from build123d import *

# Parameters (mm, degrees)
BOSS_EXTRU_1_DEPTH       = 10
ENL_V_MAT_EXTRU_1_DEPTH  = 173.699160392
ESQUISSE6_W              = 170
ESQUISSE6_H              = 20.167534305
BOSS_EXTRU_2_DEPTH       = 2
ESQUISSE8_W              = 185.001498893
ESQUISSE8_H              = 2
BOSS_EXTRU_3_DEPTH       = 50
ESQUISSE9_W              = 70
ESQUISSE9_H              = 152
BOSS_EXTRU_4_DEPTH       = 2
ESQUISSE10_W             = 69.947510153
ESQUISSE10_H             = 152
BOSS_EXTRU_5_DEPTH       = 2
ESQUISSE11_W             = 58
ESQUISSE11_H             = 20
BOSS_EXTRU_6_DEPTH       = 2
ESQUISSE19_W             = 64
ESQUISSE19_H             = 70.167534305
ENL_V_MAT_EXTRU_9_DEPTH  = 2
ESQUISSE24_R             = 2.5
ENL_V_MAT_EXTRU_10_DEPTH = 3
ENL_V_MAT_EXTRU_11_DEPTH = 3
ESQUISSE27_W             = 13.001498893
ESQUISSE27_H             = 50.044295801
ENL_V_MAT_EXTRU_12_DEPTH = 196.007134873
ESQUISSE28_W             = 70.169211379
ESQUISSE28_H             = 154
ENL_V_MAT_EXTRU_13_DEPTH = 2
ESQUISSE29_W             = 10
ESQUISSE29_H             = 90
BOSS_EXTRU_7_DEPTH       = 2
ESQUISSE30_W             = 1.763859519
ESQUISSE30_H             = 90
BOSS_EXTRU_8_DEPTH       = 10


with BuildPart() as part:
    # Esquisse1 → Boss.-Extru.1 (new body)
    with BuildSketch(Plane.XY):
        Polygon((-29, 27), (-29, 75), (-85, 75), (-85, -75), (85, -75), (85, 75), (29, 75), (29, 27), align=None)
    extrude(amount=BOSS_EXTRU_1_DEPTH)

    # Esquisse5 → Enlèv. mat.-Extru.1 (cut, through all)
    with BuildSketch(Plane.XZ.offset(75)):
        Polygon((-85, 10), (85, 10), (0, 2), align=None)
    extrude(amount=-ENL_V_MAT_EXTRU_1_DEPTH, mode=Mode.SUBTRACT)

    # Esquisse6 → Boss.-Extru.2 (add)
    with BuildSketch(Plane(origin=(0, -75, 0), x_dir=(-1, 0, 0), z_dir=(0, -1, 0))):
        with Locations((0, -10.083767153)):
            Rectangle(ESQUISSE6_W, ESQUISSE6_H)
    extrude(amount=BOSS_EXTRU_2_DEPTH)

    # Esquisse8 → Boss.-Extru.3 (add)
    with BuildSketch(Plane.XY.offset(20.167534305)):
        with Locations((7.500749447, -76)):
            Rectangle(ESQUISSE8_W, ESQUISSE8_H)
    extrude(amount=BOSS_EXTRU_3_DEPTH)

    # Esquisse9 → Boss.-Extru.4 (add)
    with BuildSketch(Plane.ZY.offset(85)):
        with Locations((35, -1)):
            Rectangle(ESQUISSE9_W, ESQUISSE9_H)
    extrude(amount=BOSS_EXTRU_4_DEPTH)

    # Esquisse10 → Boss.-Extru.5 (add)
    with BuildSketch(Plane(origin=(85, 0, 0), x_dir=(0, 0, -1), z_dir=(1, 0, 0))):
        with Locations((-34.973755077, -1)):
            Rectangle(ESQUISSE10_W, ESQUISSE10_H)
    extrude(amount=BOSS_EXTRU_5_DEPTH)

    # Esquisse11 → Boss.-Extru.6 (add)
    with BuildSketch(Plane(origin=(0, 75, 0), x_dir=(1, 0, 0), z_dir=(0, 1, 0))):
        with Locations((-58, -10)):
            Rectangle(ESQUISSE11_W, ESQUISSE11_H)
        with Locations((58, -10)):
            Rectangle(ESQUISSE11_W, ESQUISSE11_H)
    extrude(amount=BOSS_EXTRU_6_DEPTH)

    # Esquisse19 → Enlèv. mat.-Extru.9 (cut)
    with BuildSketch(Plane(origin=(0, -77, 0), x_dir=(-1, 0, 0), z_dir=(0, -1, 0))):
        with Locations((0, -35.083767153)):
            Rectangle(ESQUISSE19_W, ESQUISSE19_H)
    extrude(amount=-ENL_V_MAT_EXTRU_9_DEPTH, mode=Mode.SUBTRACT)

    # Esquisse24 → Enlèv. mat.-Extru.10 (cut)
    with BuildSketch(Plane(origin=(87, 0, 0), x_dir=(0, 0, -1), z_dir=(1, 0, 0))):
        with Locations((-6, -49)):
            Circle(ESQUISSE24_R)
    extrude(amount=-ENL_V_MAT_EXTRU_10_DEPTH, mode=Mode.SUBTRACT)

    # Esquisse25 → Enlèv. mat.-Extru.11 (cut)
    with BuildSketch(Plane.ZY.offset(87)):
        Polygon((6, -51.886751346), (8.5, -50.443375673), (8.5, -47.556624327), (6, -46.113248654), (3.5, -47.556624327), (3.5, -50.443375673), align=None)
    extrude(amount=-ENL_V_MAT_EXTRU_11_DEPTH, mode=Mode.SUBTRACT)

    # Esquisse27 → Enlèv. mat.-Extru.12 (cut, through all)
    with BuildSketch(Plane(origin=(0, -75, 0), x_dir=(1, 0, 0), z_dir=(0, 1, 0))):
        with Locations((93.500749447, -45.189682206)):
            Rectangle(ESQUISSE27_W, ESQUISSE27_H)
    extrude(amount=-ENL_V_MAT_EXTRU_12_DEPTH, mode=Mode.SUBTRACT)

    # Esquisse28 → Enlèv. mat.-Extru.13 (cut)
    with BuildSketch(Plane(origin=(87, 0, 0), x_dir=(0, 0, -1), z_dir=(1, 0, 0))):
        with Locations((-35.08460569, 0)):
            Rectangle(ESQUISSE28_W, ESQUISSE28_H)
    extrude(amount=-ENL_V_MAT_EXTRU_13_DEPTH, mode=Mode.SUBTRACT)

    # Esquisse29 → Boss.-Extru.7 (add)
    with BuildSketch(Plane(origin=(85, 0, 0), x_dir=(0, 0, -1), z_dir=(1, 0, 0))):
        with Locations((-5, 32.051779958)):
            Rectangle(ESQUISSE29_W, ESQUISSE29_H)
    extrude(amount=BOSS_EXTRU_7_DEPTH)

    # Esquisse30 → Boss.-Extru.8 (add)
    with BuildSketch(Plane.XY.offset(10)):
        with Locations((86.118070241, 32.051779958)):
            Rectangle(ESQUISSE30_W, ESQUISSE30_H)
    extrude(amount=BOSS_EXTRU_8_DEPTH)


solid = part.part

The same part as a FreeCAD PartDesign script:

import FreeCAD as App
import Part
import Sketcher
from FreeCAD import Vector
Q = App.Units.Quantity

doc = App.newDocument("Part")
params = doc.addObject("Spreadsheet::Sheet", "Params")
for row, (alias, value) in enumerate([
    ("sketch1_width", "56 mm"),
    ("sketch1_width2", "170 mm"),
    ("sketch1_height", "48 mm"),
    ("sketch1_height2", "150 mm"),
    ("pad1_length", "10 mm"),
    ("sketch2_width", "170 mm"),
    ("sketch3_width", "170 mm"),
    ("pad2_length", "2 mm"),
    ("sketch4_height", "2 mm"),
    ("pad3_length", "50 mm"),
    ("sketch5_width", "152 mm"),
    ("sketch5_height", "70 mm"),
    ("pad4_length", "2 mm"),
    ("sketch6_width", "152 mm"),
    ("pad5_length", "2 mm"),
    ("sketch7_width", "58 mm"),
    ("sketch7_height", "20 mm"),
    ("pad6_length", "2 mm"),
    ("sketch8_width", "64 mm"),
    ("pocket2_length", "2 mm"),
    ("sketch9_diameter", "5 mm"),
    ("pocket3_length", "3 mm"),
    ("pocket4_length", "3 mm"),
    ("sketch12_width", "154 mm"),
    ("pocket6_length", "2 mm"),
    ("sketch13_width", "90 mm"),
    ("sketch13_height", "10 mm"),
    ("pad7_length", "2 mm"),
    ("sketch14_height", "90 mm"),
    ("pad8_length", "10 mm"),
], start=1):
    params.set(f"A{row}", alias)
    params.set(f"B{row}", "=" + value)
    params.setAlias(f"B{row}", alias)

body = doc.addObject("PartDesign::Body", "Body")

sketch1 = body.newObject("Sketcher::SketchObject", "Sketch")
sketch1.AttachmentSupport = (doc.getObject("XY_Plane"), [""])
sketch1.MapMode = "FlatFace"
sketch1.addGeometry([
    Part.LineSegment(Vector(-29, 27, 0), Vector(-29, 75, 0)),
    Part.LineSegment(Vector(-29, 75, 0), Vector(-85, 75, 0)),
    Part.LineSegment(Vector(-85, 75, 0), Vector(-85, -75, 0)),
    Part.LineSegment(Vector(-85, -75, 0), Vector(85, -75, 0)),
    Part.LineSegment(Vector(85, -75, 0), Vector(85, 75, 0)),
    Part.LineSegment(Vector(85, 75, 0), Vector(29, 75, 0)),
    Part.LineSegment(Vector(29, 75, 0), Vector(29, 27, 0)),
    Part.LineSegment(Vector(29, 27, 0), Vector(-29, 27, 0)),
], False)
sketch1.addConstraint([
    Sketcher.Constraint("Coincident", 0, 2, 1, 1),
    Sketcher.Constraint("Coincident", 1, 2, 2, 1),
    Sketcher.Constraint("Coincident", 2, 2, 3, 1),
    Sketcher.Constraint("Coincident", 3, 2, 4, 1),
    Sketcher.Constraint("Coincident", 4, 2, 5, 1),
    Sketcher.Constraint("Coincident", 5, 2, 6, 1),
    Sketcher.Constraint("Coincident", 6, 2, 7, 1),
    Sketcher.Constraint("Coincident", 7, 2, 0, 1),
    Sketcher.Constraint("Vertical", 0),
    Sketcher.Constraint("Horizontal", 1),
    Sketcher.Constraint("Vertical", 2),
    Sketcher.Constraint("Horizontal", 3),
    Sketcher.Constraint("Vertical", 4),
    Sketcher.Constraint("Horizontal", 5),
    Sketcher.Constraint("Vertical", 6),
    Sketcher.Constraint("Horizontal", 7),
    Sketcher.Constraint("Symmetric", 1, 2, 3, 2, -1, 1),
    Sketcher.Constraint("Symmetric", 0, 2, 5, 2, -2),
    Sketcher.Constraint("DistanceX", 1, 2, 1, 1, Q("56 mm")),
    Sketcher.Constraint("DistanceX", 3, 1, 3, 2, Q("170 mm")),
    Sketcher.Constraint("DistanceY", 0, 1, 0, 2, Q("48 mm")),
    Sketcher.Constraint("DistanceY", 2, 2, 2, 1, Q("150 mm")),
])
sketch1.setExpression("Constraints[18]", "Params.sketch1_width")
sketch1.setExpression("Constraints[19]", "Params.sketch1_width2")
sketch1.setExpression("Constraints[20]", "Params.sketch1_height")
sketch1.setExpression("Constraints[21]", "Params.sketch1_height2")
pad1 = body.newObject("PartDesign::Pad", "Pad")
pad1.Profile = sketch1
pad1.setExpression("Length", "Params.pad1_length")

sketch2 = body.newObject("Sketcher::SketchObject", "Sketch001")
sketch2.AttachmentSupport = (doc.getObject("XZ_Plane"), [""])
sketch2.MapMode = "FlatFace"
sketch2.AttachmentOffset = App.Placement(Vector(0, 0, 75), App.Rotation())
sketch2.addGeometry([
    Part.LineSegment(Vector(85, 10, 0), Vector(-85, 10, 0)),
    Part.LineSegment(Vector(-85, 10, 0), Vector(0, 2, 0)),
    Part.LineSegment(Vector(0, 2, 0), Vector(85, 10, 0)),
], False)
sketch2.addConstraint([
    Sketcher.Constraint("Coincident", 0, 2, 1, 1),
    Sketcher.Constraint("Coincident", 1, 2, 2, 1),
    Sketcher.Constraint("Coincident", 2, 2, 0, 1),
    Sketcher.Constraint("Horizontal", 0),
    Sketcher.Constraint("PointOnObject", 1, 2, -2),
    Sketcher.Constraint("Equal", 1, 2),
    Sketcher.Constraint("DistanceX", 0, 2, 0, 1, Q("170 mm")),
    Sketcher.Constraint("DistanceY", -1, 1, 0, 2, Q("10 mm")),
    Sketcher.Constraint("DistanceY", -1, 1, 1, 2, Q("2 mm")),
])
sketch2.setExpression("Constraints[6]", "Params.sketch2_width")
pocket1 = body.newObject("PartDesign::Pocket", "Pocket")
pocket1.Profile = sketch2
pocket1.Type = "ThroughAll"

sketch3 = body.newObject("Sketcher::SketchObject", "Sketch002")
sketch3.AttachmentSupport = (doc.getObject("XZ_Plane"), [""])
sketch3.MapMode = "FlatFace"
sketch3.AttachmentOffset = App.Placement(Vector(0, 0, 75), App.Rotation())
sketch3.addGeometry([
    Part.LineSegment(Vector(85, 0, 0), Vector(85, 20, 0)),
    Part.LineSegment(Vector(85, 20, 0), Vector(-85, 20, 0)),
    Part.LineSegment(Vector(-85, 20, 0), Vector(-85, 0, 0)),
    Part.LineSegment(Vector(-85, 0, 0), Vector(85, 0, 0)),
], False)
sketch3.addConstraint([
    Sketcher.Constraint("Coincident", 0, 2, 1, 1),
    Sketcher.Constraint("Coincident", 1, 2, 2, 1),
    Sketcher.Constraint("Coincident", 2, 2, 3, 1),
    Sketcher.Constraint("Coincident", 3, 2, 0, 1),
    Sketcher.Constraint("Vertical", 0),
    Sketcher.Constraint("Horizontal", 1),
    Sketcher.Constraint("Vertical", 2),
    Sketcher.Constraint("Horizontal", 3),
    Sketcher.Constraint("Symmetric", 2, 2, 3, 2, -1, 1),
    Sketcher.Constraint("DistanceX", 1, 2, 1, 1, Q("170 mm")),
    Sketcher.Constraint("DistanceY", 0, 1, 0, 2, Q("20.167534 mm")),
])
sketch3.setExpression("Constraints[9]", "Params.sketch3_width")
pad2 = body.newObject("PartDesign::Pad", "Pad001")
pad2.Profile = sketch3
pad2.setExpression("Length", "Params.pad2_length")

sketch4 = body.newObject("Sketcher::SketchObject", "Sketch003")
sketch4.AttachmentSupport = (doc.getObject("XY_Plane"), [""])
sketch4.MapMode = "FlatFace"
sketch4.AttachmentOffset = App.Placement(Vector(0, 0, 20.167534), App.Rotation())
sketch4.addGeometry([
    Part.LineSegment(Vector(-85, -75, 0), Vector(-85, -77, 0)),
    Part.LineSegment(Vector(-85, -77, 0), Vector(100, -77, 0)),
    Part.LineSegment(Vector(100, -77, 0), Vector(100, -75, 0)),
    Part.LineSegment(Vector(100, -75, 0), Vector(-85, -75, 0)),
], False)
sketch4.addConstraint([
    Sketcher.Constraint("Coincident", 0, 2, 1, 1),
    Sketcher.Constraint("Coincident", 1, 2, 2, 1),
    Sketcher.Constraint("Coincident", 2, 2, 3, 1),
    Sketcher.Constraint("Coincident", 3, 2, 0, 1),
    Sketcher.Constraint("Vertical", 0),
    Sketcher.Constraint("Horizontal", 1),
    Sketcher.Constraint("Vertical", 2),
    Sketcher.Constraint("Horizontal", 3),
    Sketcher.Constraint("DistanceY", 0, 2, 0, 1, Q("2 mm")),
    Sketcher.Constraint("DistanceX", 0, 2, -1, 1, Q("85 mm")),
    Sketcher.Constraint("DistanceY", 0, 2, -1, 1, Q("77 mm")),
    Sketcher.Constraint("DistanceX", 1, 1, 1, 2, Q("185.001499 mm")),
])
sketch4.setExpression("Constraints[8]", "Params.sketch4_height")
pad3 = body.newObject("PartDesign::Pad", "Pad002")
pad3.Profile = sketch4
pad3.setExpression("Length", "Params.pad3_length")

sketch5 = body.newObject("Sketcher::SketchObject", "Sketch004")
sketch5.AttachmentSupport = (doc.getObject("YZ_Plane"), [""])
sketch5.MapMode = "FlatFace"
sketch5.AttachmentOffset = App.Placement(Vector(0, 0, -85), App.Rotation())
sketch5.addGeometry([
    Part.LineSegment(Vector(75, 0, 0), Vector(-77, 0, 0)),
    Part.LineSegment(Vector(-77, 0, 0), Vector(-77, 70, 0)),
    Part.LineSegment(Vector(-77, 70, 0), Vector(75, 70, 0)),
    Part.LineSegment(Vector(75, 70, 0), Vector(75, 0, 0)),
], False)
sketch5.addConstraint([
    Sketcher.Constraint("Coincident", 0, 2, 1, 1),
    Sketcher.Constraint("Coincident", 1, 2, 2, 1),
    Sketcher.Constraint("Coincident", 2, 2, 3, 1),
    Sketcher.Constraint("Coincident", 3, 2, 0, 1),
    Sketcher.Constraint("Horizontal", 0),
    Sketcher.Constraint("Vertical", 1),
    Sketcher.Constraint("Horizontal", 2),
    Sketcher.Constraint("Vertical", 3),
    Sketcher.Constraint("PointOnObject", 0, 2, -1),
    Sketcher.Constraint("DistanceX", 0, 2, 0, 1, Q("152 mm")),
    Sketcher.Constraint("DistanceY", 1, 1, 1, 2, Q("70 mm")),
    Sketcher.Constraint("DistanceX", 0, 2, -1, 1, Q("77 mm")),
])
sketch5.setExpression("Constraints[9]", "Params.sketch5_width")
sketch5.setExpression("Constraints[10]", "Params.sketch5_height")
pad4 = body.newObject("PartDesign::Pad", "Pad003")
pad4.Profile = sketch5
pad4.setExpression("Length", "Params.pad4_length")
pad4.Reversed = True

sketch6 = body.newObject("Sketcher::SketchObject", "Sketch005")
sketch6.AttachmentSupport = (doc.getObject("YZ_Plane"), [""])
sketch6.MapMode = "FlatFace"
sketch6.AttachmentOffset = App.Placement(Vector(0, 0, 85), App.Rotation())
sketch6.addGeometry([
    Part.LineSegment(Vector(75, 70, 0), Vector(-77, 70, 0)),
    Part.LineSegment(Vector(-77, 70, 0), Vector(-77, 0, 0)),
    Part.LineSegment(Vector(-77, 0, 0), Vector(75, 0, 0)),
    Part.LineSegment(Vector(75, 0, 0), Vector(75, 70, 0)),
], False)
sketch6.addConstraint([
    Sketcher.Constraint("Coincident", 0, 2, 1, 1),
    Sketcher.Constraint("Coincident", 1, 2, 2, 1),
    Sketcher.Constraint("Coincident", 2, 2, 3, 1),
    Sketcher.Constraint("Coincident", 3, 2, 0, 1),
    Sketcher.Constraint("Horizontal", 0),
    Sketcher.Constraint("Vertical", 1),
    Sketcher.Constraint("Horizontal", 2),
    Sketcher.Constraint("Vertical", 3),
    Sketcher.Constraint("PointOnObject", 1, 2, -1),
    Sketcher.Constraint("DistanceX", 0, 2, 0, 1, Q("152 mm")),
    Sketcher.Constraint("DistanceX", 0, 2, -1, 1, Q("77 mm")),
    Sketcher.Constraint("DistanceY", 1, 2, 1, 1, Q("69.94751 mm")),
])
sketch6.setExpression("Constraints[9]", "Params.sketch6_width")
pad5 = body.newObject("PartDesign::Pad", "Pad004")
pad5.Profile = sketch6
pad5.setExpression("Length", "Params.pad5_length")

sketch7 = body.newObject("Sketcher::SketchObject", "Sketch006")
sketch7.AttachmentSupport = (doc.getObject("XZ_Plane"), [""])
sketch7.MapMode = "FlatFace"
sketch7.AttachmentOffset = App.Placement(Vector(0, 0, -75), App.Rotation())
sketch7.addGeometry([
    Part.LineSegment(Vector(-87, 0, 0), Vector(-87, 20, 0)),
    Part.LineSegment(Vector(-87, 20, 0), Vector(-29, 20, 0)),
    Part.LineSegment(Vector(-29, 20, 0), Vector(-29, 0, 0)),
    Part.LineSegment(Vector(-29, 0, 0), Vector(-87, 0, 0)),
    Part.LineSegment(Vector(29, 0, 0), Vector(29, 20, 0)),
    Part.LineSegment(Vector(29, 20, 0), Vector(87, 20, 0)),
    Part.LineSegment(Vector(87, 20, 0), Vector(87, 0, 0)),
    Part.LineSegment(Vector(87, 0, 0), Vector(29, 0, 0)),
], False)
sketch7.addConstraint([
    Sketcher.Constraint("Coincident", 0, 2, 1, 1),
    Sketcher.Constraint("Coincident", 1, 2, 2, 1),
    Sketcher.Constraint("Coincident", 2, 2, 3, 1),
    Sketcher.Constraint("Coincident", 3, 2, 0, 1),
    Sketcher.Constraint("Coincident", 4, 2, 5, 1),
    Sketcher.Constraint("Coincident", 5, 2, 6, 1),
    Sketcher.Constraint("Coincident", 6, 2, 7, 1),
    Sketcher.Constraint("Coincident", 7, 2, 4, 1),
    Sketcher.Constraint("Vertical", 0),
    Sketcher.Constraint("Horizontal", 1),
    Sketcher.Constraint("Vertical", 2),
    Sketcher.Constraint("Horizontal", 3),
    Sketcher.Constraint("Vertical", 4),
    Sketcher.Constraint("Horizontal", 5),
    Sketcher.Constraint("Vertical", 6),
    Sketcher.Constraint("Horizontal", 7),
    Sketcher.Constraint("Symmetric", 3, 2, 6, 2, -1, 1),
    Sketcher.Constraint("Symmetric", 1, 2, 4, 2, -2),
    Sketcher.Constraint("PointOnObject", 2, 2, -1),
    Sketcher.Constraint("DistanceX", 1, 1, 1, 2, Q("58 mm")),
    Sketcher.Constraint("DistanceY", 0, 1, 0, 2, Q("20 mm")),
    Sketcher.Constraint("DistanceX", 0, 2, -1, 1, Q("87 mm")),
])
sketch7.setExpression("Constraints[19]", "Params.sketch7_width")
sketch7.setExpression("Constraints[20]", "Params.sketch7_height")
pad6 = body.newObject("PartDesign::Pad", "Pad005")
pad6.Profile = sketch7
pad6.setExpression("Length", "Params.pad6_length")
pad6.Reversed = True

sketch8 = body.newObject("Sketcher::SketchObject", "Sketch007")
sketch8.AttachmentSupport = (doc.getObject("XZ_Plane"), [""])
sketch8.MapMode = "FlatFace"
sketch8.AttachmentOffset = App.Placement(Vector(0, 0, 77), App.Rotation())
sketch8.addGeometry([
    Part.LineSegment(Vector(32, 0, 0), Vector(32, 70, 0)),
    Part.LineSegment(Vector(32, 70, 0), Vector(-32, 70, 0)),
    Part.LineSegment(Vector(-32, 70, 0), Vector(-32, 0, 0)),
    Part.LineSegment(Vector(-32, 0, 0), Vector(32, 0, 0)),
], False)
sketch8.addConstraint([
    Sketcher.Constraint("Coincident", 0, 2, 1, 1),
    Sketcher.Constraint("Coincident", 1, 2, 2, 1),
    Sketcher.Constraint("Coincident", 2, 2, 3, 1),
    Sketcher.Constraint("Coincident", 3, 2, 0, 1),
    Sketcher.Constraint("Vertical", 0),
    Sketcher.Constraint("Horizontal", 1),
    Sketcher.Constraint("Vertical", 2),
    Sketcher.Constraint("Horizontal", 3),
    Sketcher.Constraint("Symmetric", 2, 2, 3, 2, -1, 1),
    Sketcher.Constraint("DistanceX", 1, 2, 1, 1, Q("64 mm")),
    Sketcher.Constraint("DistanceY", 0, 1, 0, 2, Q("70.167534 mm")),
])
sketch8.setExpression("Constraints[9]", "Params.sketch8_width")
pocket2 = body.newObject("PartDesign::Pocket", "Pocket001")
pocket2.Profile = sketch8
pocket2.setExpression("Length", "Params.pocket2_length")

sketch9 = body.newObject("Sketcher::SketchObject", "Sketch008")
sketch9.AttachmentSupport = (doc.getObject("YZ_Plane"), [""])
sketch9.MapMode = "FlatFace"
sketch9.AttachmentOffset = App.Placement(Vector(0, 0, 87), App.Rotation())
sketch9.addGeometry(Part.Circle(Vector(-49, 6, 0), Vector(0, 0, 1), 2.5), False)
sketch9.addConstraint([
    Sketcher.Constraint("Diameter", 0, Q("5 mm")),
    Sketcher.Constraint("DistanceX", 0, 3, -1, 1, Q("49 mm")),
    Sketcher.Constraint("DistanceY", -1, 1, 0, 3, Q("6 mm")),
])
sketch9.setExpression("Constraints[0]", "Params.sketch9_diameter")
pocket3 = body.newObject("PartDesign::Pocket", "Pocket002")
pocket3.Profile = sketch9
pocket3.setExpression("Length", "Params.pocket3_length")

sketch10 = body.newObject("Sketcher::SketchObject", "Sketch009")
sketch10.AttachmentSupport = (doc.getObject("YZ_Plane"), [""])
sketch10.MapMode = "FlatFace"
sketch10.AttachmentOffset = App.Placement(Vector(0, 0, -87), App.Rotation())
sketch10.addGeometry([
    Part.LineSegment(Vector(-51.9, 6, 0), Vector(-50.4, 8.5, 0)),
    Part.LineSegment(Vector(-50.4, 8.5, 0), Vector(-47.6, 8.5, 0)),
    Part.LineSegment(Vector(-47.6, 8.5, 0), Vector(-46.1, 6, 0)),
    Part.LineSegment(Vector(-46.1, 6, 0), Vector(-47.6, 3.5, 0)),
    Part.LineSegment(Vector(-47.6, 3.5, 0), Vector(-50.4, 3.5, 0)),
    Part.LineSegment(Vector(-50.4, 3.5, 0), Vector(-51.9, 6, 0)),
], False)
sketch10.addConstraint([
    Sketcher.Constraint("Coincident", 0, 2, 1, 1),
    Sketcher.Constraint("Coincident", 1, 2, 2, 1),
    Sketcher.Constraint("Coincident", 2, 2, 3, 1),
    Sketcher.Constraint("Coincident", 3, 2, 4, 1),
    Sketcher.Constraint("Coincident", 4, 2, 5, 1),
    Sketcher.Constraint("Coincident", 5, 2, 0, 1),
    Sketcher.Constraint("Horizontal", 1),
    Sketcher.Constraint("Horizontal", 4),
    Sketcher.Constraint("Parallel", 0, 3),
    Sketcher.Constraint("Parallel", 2, 5),
    Sketcher.Constraint("Horizontal", 2, 2, 5, 2),
    Sketcher.Constraint("Vertical", 1, 2, 3, 2),
    Sketcher.Constraint("Vertical", 0, 2, 4, 2),
    Sketcher.Constraint("Angle", 0, Q("60 deg")),
    Sketcher.Constraint("DistanceY", -1, 1, 2, 2, Q("6 mm")),
    Sketcher.Constraint("DistanceY", 3, 2, 1, 2, Q("5 mm")),
    Sketcher.Constraint("DistanceX", 1, 1, 1, 2, Q("2.886751 mm")),
    Sketcher.Constraint("DistanceX", 2, 2, -1, 1, Q("46.113249 mm")),
])
pocket4 = body.newObject("PartDesign::Pocket", "Pocket003")
pocket4.Profile = sketch10
pocket4.setExpression("Length", "Params.pocket4_length")
pocket4.Reversed = True

sketch11 = body.newObject("Sketcher::SketchObject", "Sketch010")
sketch11.AttachmentSupport = (doc.getObject("XZ_Plane"), [""])
sketch11.MapMode = "FlatFace"
sketch11.AttachmentOffset = App.Placement(Vector(0, 0, 75), App.Rotation())
sketch11.addGeometry([
    Part.LineSegment(Vector(87, 20, 0), Vector(87, 70, 0)),
    Part.LineSegment(Vector(87, 70, 0), Vector(100, 70, 0)),
    Part.LineSegment(Vector(100, 70, 0), Vector(100, 20, 0)),
    Part.LineSegment(Vector(100, 20, 0), Vector(87, 20, 0)),
], False)
sketch11.addConstraint([
    Sketcher.Constraint("Coincident", 0, 2, 1, 1),
    Sketcher.Constraint("Coincident", 1, 2, 2, 1),
    Sketcher.Constraint("Coincident", 2, 2, 3, 1),
    Sketcher.Constraint("Coincident", 3, 2, 0, 1),
    Sketcher.Constraint("Vertical", 0),
    Sketcher.Constraint("Horizontal", 1),
    Sketcher.Constraint("Vertical", 2),
    Sketcher.Constraint("Horizontal", 3),
    Sketcher.Constraint("DistanceX", -1, 1, 0, 2, Q("87 mm")),
    Sketcher.Constraint("DistanceX", 1, 1, 1, 2, Q("13.001499 mm")),
    Sketcher.Constraint("DistanceY", 0, 1, 0, 2, Q("50.044296 mm")),
    Sketcher.Constraint("DistanceY", -1, 1, 0, 2, Q("70.21183 mm")),
])
pocket5 = body.newObject("PartDesign::Pocket", "Pocket004")
pocket5.Profile = sketch11
pocket5.Type = "ThroughAll"
pocket5.Reversed = True

sketch12 = body.newObject("Sketcher::SketchObject", "Sketch011")
sketch12.AttachmentSupport = (doc.getObject("YZ_Plane"), [""])
sketch12.MapMode = "FlatFace"
sketch12.AttachmentOffset = App.Placement(Vector(0, 0, 87), App.Rotation())
sketch12.addGeometry([
    Part.LineSegment(Vector(77, 70, 0), Vector(-77, 70, 0)),
    Part.LineSegment(Vector(-77, 70, 0), Vector(-77, 0, 0)),
    Part.LineSegment(Vector(-77, 0, 0), Vector(77, 0, 0)),
    Part.LineSegment(Vector(77, 0, 0), Vector(77, 70, 0)),
], False)
sketch12.addConstraint([
    Sketcher.Constraint("Coincident", 0, 2, 1, 1),
    Sketcher.Constraint("Coincident", 1, 2, 2, 1),
    Sketcher.Constraint("Coincident", 2, 2, 3, 1),
    Sketcher.Constraint("Coincident", 3, 2, 0, 1),
    Sketcher.Constraint("Horizontal", 0),
    Sketcher.Constraint("Vertical", 1),
    Sketcher.Constraint("Horizontal", 2),
    Sketcher.Constraint("Vertical", 3),
    Sketcher.Constraint("Symmetric", 1, 2, 2, 2, -1, 1),
    Sketcher.Constraint("DistanceX", 0, 2, 0, 1, Q("154 mm")),
    Sketcher.Constraint("DistanceY", 1, 2, 1, 1, Q("70.169211 mm")),
])
sketch12.setExpression("Constraints[9]", "Params.sketch12_width")
pocket6 = body.newObject("PartDesign::Pocket", "Pocket005")
pocket6.Profile = sketch12
pocket6.setExpression("Length", "Params.pocket6_length")

sketch13 = body.newObject("Sketcher::SketchObject", "Sketch012")
sketch13.AttachmentSupport = (doc.getObject("YZ_Plane"), [""])
sketch13.MapMode = "FlatFace"
sketch13.AttachmentOffset = App.Placement(Vector(0, 0, 85), App.Rotation())
sketch13.addGeometry([
    Part.LineSegment(Vector(77, 10, 0), Vector(-13, 10, 0)),
    Part.LineSegment(Vector(-13, 10, 0), Vector(-13, 0, 0)),
    Part.LineSegment(Vector(-13, 0, 0), Vector(77, 0, 0)),
    Part.LineSegment(Vector(77, 0, 0), Vector(77, 10, 0)),
], False)
sketch13.addConstraint([
    Sketcher.Constraint("Coincident", 0, 2, 1, 1),
    Sketcher.Constraint("Coincident", 1, 2, 2, 1),
    Sketcher.Constraint("Coincident", 2, 2, 3, 1),
    Sketcher.Constraint("Coincident", 3, 2, 0, 1),
    Sketcher.Constraint("Horizontal", 0),
    Sketcher.Constraint("Vertical", 1),
    Sketcher.Constraint("Horizontal", 2),
    Sketcher.Constraint("Vertical", 3),
    Sketcher.Constraint("PointOnObject", 1, 2, -1),
    Sketcher.Constraint("DistanceX", 0, 2, 0, 1, Q("90 mm")),
    Sketcher.Constraint("DistanceY", 1, 2, 1, 1, Q("10 mm")),
    Sketcher.Constraint("DistanceX", 0, 2, -1, 1, Q("12.94822 mm")),
])
sketch13.setExpression("Constraints[9]", "Params.sketch13_width")
sketch13.setExpression("Constraints[10]", "Params.sketch13_height")
pad7 = body.newObject("PartDesign::Pad", "Pad006")
pad7.Profile = sketch13
pad7.setExpression("Length", "Params.pad7_length")

sketch14 = body.newObject("Sketcher::SketchObject", "Sketch013")
sketch14.AttachmentSupport = (doc.getObject("XY_Plane"), [""])
sketch14.MapMode = "FlatFace"
sketch14.AttachmentOffset = App.Placement(Vector(0, 0, 10), App.Rotation())
sketch14.addGeometry([
    Part.LineSegment(Vector(85.2, 77.1, 0), Vector(85.2, -12.9, 0)),
    Part.LineSegment(Vector(85.2, -12.9, 0), Vector(87, -12.9, 0)),
    Part.LineSegment(Vector(87, -12.9, 0), Vector(87, 77.1, 0)),
    Part.LineSegment(Vector(87, 77.1, 0), Vector(85.2, 77.1, 0)),
], False)
sketch14.addConstraint([
    Sketcher.Constraint("Coincident", 0, 2, 1, 1),
    Sketcher.Constraint("Coincident", 1, 2, 2, 1),
    Sketcher.Constraint("Coincident", 2, 2, 3, 1),
    Sketcher.Constraint("Coincident", 3, 2, 0, 1),
    Sketcher.Constraint("Vertical", 0),
    Sketcher.Constraint("Horizontal", 1),
    Sketcher.Constraint("Vertical", 2),
    Sketcher.Constraint("Horizontal", 3),
    Sketcher.Constraint("DistanceY", 0, 2, 0, 1, Q("90 mm")),
    Sketcher.Constraint("DistanceX", -1, 1, 1, 2, Q("87 mm")),
    Sketcher.Constraint("DistanceX", 1, 1, 1, 2, Q("1.76386 mm")),
    Sketcher.Constraint("DistanceY", 0, 2, -1, 1, Q("12.94822 mm")),
])
sketch14.setExpression("Constraints[8]", "Params.sketch14_height")
pad8 = body.newObject("PartDesign::Pad", "Pad007")
pad8.Profile = sketch14
pad8.setExpression("Length", "Params.pad8_length")

doc.recompute()
